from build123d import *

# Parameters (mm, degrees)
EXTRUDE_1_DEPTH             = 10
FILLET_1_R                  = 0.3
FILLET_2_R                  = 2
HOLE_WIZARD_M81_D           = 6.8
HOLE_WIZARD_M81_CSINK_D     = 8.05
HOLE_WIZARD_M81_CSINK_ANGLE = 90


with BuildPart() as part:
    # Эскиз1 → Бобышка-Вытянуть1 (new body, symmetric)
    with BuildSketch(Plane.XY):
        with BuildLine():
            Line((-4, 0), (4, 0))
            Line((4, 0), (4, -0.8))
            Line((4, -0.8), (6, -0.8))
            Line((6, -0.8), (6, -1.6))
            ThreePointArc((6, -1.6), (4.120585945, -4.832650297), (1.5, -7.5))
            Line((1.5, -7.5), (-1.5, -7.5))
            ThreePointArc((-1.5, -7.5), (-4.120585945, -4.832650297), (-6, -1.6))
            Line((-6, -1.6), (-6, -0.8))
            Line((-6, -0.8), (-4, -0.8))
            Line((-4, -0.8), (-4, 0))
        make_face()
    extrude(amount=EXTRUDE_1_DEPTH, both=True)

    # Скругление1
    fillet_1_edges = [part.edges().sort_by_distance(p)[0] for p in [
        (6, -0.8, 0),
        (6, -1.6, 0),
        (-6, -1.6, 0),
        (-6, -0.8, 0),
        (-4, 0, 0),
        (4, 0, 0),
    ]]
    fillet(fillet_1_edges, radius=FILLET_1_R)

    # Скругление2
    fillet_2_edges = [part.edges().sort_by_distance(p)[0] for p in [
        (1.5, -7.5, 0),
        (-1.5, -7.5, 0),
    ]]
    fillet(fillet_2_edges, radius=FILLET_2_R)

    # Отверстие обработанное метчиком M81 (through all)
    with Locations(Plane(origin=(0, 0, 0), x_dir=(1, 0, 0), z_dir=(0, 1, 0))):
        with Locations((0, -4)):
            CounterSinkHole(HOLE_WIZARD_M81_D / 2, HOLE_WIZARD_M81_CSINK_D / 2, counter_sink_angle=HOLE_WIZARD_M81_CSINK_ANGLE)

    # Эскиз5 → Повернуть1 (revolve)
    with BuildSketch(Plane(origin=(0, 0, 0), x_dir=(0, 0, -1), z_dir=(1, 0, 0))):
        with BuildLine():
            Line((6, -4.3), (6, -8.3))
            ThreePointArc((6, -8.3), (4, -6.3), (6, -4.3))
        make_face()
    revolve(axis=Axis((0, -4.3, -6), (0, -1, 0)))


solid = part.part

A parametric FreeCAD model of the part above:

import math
import FreeCAD as App
import Part
import Sketcher
from FreeCAD import Vector
Q = App.Units.Quantity


def edges_at(feature, points):
    """Names of the edges that pass closest to the given points."""
    edges = feature.Shape.Edges
    near = lambda p: min(range(len(edges)), key=lambda i: edges[i].distToShape(Part.Vertex(*p))[0])
    return sorted({f"Edge{near(p) + 1}" for p in points})

doc = App.newDocument("Part")
body = doc.addObject("PartDesign::Body", "Body")

# Sketch on XY plane
sketch1 = body.newObject("Sketcher::SketchObject", "Sketch")
sketch1.AttachmentSupport = (doc.getObject("XY_Plane"), [""])
sketch1.MapMode = "FlatFace"
sketch1.addGeometry(Part.LineSegment(Vector(4, 0, 0), Vector(-4, 0, 0)), False)
sketch1.addGeometry(Part.LineSegment(Vector(-4, 0, 0), Vector(-4, -0.8, 0)), False)
sketch1.addGeometry(Part.LineSegment(Vector(-4, -0.8, 0), Vector(-6, -0.8, 0)), False)
sketch1.addGeometry(Part.LineSegment(Vector(-6, -0.8, 0), Vector(-6, -1.6, 0)), False)
sketch1.addGeometry(Part.ArcOfCircle(Part.Circle(Vector(7.806248, 4.264087, 0), Vector(0, 0, 1), 15), math.radians(-156.987051), math.radians(-128.346558)), False)
sketch1.addGeometry(Part.LineSegment(Vector(-1.5, -7.5, 0), Vector(1.5, -7.5, 0)), False)
sketch1.addGeometry(Part.ArcOfCircle(Part.Circle(Vector(-7.806248, 4.264087, 0), Vector(0, 0, 1), 15), math.radians(-51.653442), math.radians(-23.012949)), False)
sketch1.addGeometry(Part.LineSegment(Vector(6, -1.6, 0), Vector(6, -0.8, 0)), False)
sketch1.addGeometry(Part.LineSegment(Vector(6, -0.8, 0), Vector(4, -0.8, 0)), False)
sketch1.addGeometry(Part.LineSegment(Vector(4, -0.8, 0), Vector(4, 0, 0)), False)
sketch1.addConstraint(Sketcher.Constraint("Coincident", 0, 2, 1, 1))
sketch1.addConstraint(Sketcher.Constraint("Coincident", 1, 2, 2, 1))
sketch1.addConstraint(Sketcher.Constraint("Coincident", 2, 2, 3, 1))
sketch1.addConstraint(Sketcher.Constraint("Coincident", 3, 2, 4, 1))
sketch1.addConstraint(Sketcher.Constraint("Coincident", 4, 2, 5, 1))
sketch1.addConstraint(Sketcher.Constraint("Coincident", 5, 2, 6, 1))
sketch1.addConstraint(Sketcher.Constraint("Coincident", 6, 2, 7, 1))
sketch1.addConstraint(Sketcher.Constraint("Coincident", 7, 2, 8, 1))
sketch1.addConstraint(Sketcher.Constraint("Coincident", 8, 2, 9, 1))
sketch1.addConstraint(Sketcher.Constraint("Coincident", 9, 2, 0, 1))
sketch1.addConstraint(Sketcher.Constraint("Horizontal", 0))
sketch1.addConstraint(Sketcher.Constraint("Vertical", 1))
sketch1.addConstraint(Sketcher.Constraint("Horizontal", 2))
sketch1.addConstraint(Sketcher.Constraint("Vertical", 3))
sketch1.addConstraint(Sketcher.Constraint("Horizontal", 5))
sketch1.addConstraint(Sketcher.Constraint("Vertical", 7))
sketch1.addConstraint(Sketcher.Constraint("Horizontal", 8))
sketch1.addConstraint(Sketcher.Constraint("Vertical", 9))
sketch1.addConstraint(Sketcher.Constraint("Equal", 4, 6))
sketch1.addConstraint(Sketcher.Constraint("Symmetric", 0, 2, 9, 2, -1, 1))
sketch1.addConstraint(Sketcher.Constraint("Symmetric", 4, 3, 6, 3, -2))
sketch1.addConstraint(Sketcher.Constraint("Symmetric", 2, 2, 7, 2, -2))
sketch1.addConstraint(Sketcher.Constraint("Equal", 1, 3))
sketch1.addConstraint(Sketcher.Constraint("Radius", 4, Q("15 mm")))
sketch1.addConstraint(Sketcher.Constraint("DistanceX", 0, 2, 0, 1, Q("8 mm")))
sketch1.addConstraint(Sketcher.Constraint("DistanceX", 2, 2, 2, 1, Q("2 mm")))
sketch1.addConstraint(Sketcher.Constraint("DistanceX", 5, 1, 5, 2, Q("3 mm")))
sketch1.addConstraint(Sketcher.Constraint("DistanceY", 1, 2, 1, 1, Q("0.8 mm")))
sketch1.addConstraint(Sketcher.Constraint("DistanceY", 4, 2, -1, 1, Q("7.5 mm")))
pad1 = body.newObject("PartDesign::Pad", "Pad")
pad1.Profile = sketch1
pad1.Length = 20
pad1.Midplane = True
doc.recompute()

fillet = body.newObject("PartDesign::Fillet", "Fillet")
fillet.Base = (pad1, edges_at(pad1, [
    (6, -0.8, 0),
    (6, -1.6, 0),
    (-6, -1.6, 0),
    (-6, -0.8, 0),
    (-4, 0, 0),
    (4, 0, 0),
]))
fillet.Radius = 0.3
doc.recompute()

fillet2 = body.newObject("PartDesign::Fillet", "Fillet001")
fillet2.Base = (fillet, edges_at(fillet, [(1.5, -7.5, 0), (-1.5, -7.5, 0)]))
fillet2.Radius = 2

# Sketch on XZ plane
sketch2 = body.newObject("Sketcher::SketchObject", "Sketch001")
sketch2.AttachmentSupport = (doc.getObject("XZ_Plane"), [""])
sketch2.MapMode = "FlatFace"
sketch2.addGeometry(Part.Circle(Vector(0, 4, 0), Vector(0, 0, 1), 3.4), False)
sketch2.addConstraint(Sketcher.Constraint("PointOnObject", 0, 3, -2))
sketch2.addConstraint(Sketcher.Constraint("Diameter", 0, Q("6.8 mm")))
sketch2.addConstraint(Sketcher.Constraint("DistanceY", -1, 1, 0, 3, Q("4 mm")))
doc.recompute()
hole = body.newObject("PartDesign::Hole", "Hole")
hole.Profile = sketch2
hole.ThreadType = "None"
hole.Diameter = 6.8
hole.DepthType = "ThroughAll"
hole.HoleCutType = "Countersink"
hole.HoleCutDiameter = 8.05
hole.HoleCutCountersinkAngle = 90
hole.Reversed = True

# Sketch on YZ plane
sketch3 = body.newObject("Sketcher::SketchObject", "Sketch002")
sketch3.AttachmentSupport = (doc.getObject("YZ_Plane"), [""])
sketch3.MapMode = "FlatFace"
sketch3.addGeometry(Part.LineSegment(Vector(-8.3, -6, 0), Vector(-4.3, -6, 0)), False)
sketch3.addGeometry(Part.ArcOfCircle(Part.Circle(Vector(-6.3, -6, 0), Vector(0, 0, 1), 2), math.radians(0), math.radians(180)), False)
sketch3.addGeometry(Part.LineSegment(Vector(-4.3, -6, 0), Vector(-8.3, -6, 0)), True)  # axis
sketch3.addConstraint(Sketcher.Constraint("Coincident", 0, 1, 1, 2))
sketch3.addConstraint(Sketcher.Constraint("Coincident", 1, 1, 0, 2))
sketch3.addConstraint(Sketcher.Constraint("Horizontal", 0))
sketch3.addConstraint(Sketcher.Constraint("Horizontal", 2))
sketch3.addConstraint(Sketcher.Constraint("Coincident", 2, 1, 1, 1))
sketch3.addConstraint(Sketcher.Constraint("Horizontal", 1, 3, 0, 1))
sketch3.addConstraint(Sketcher.Constraint("Equal", 0, 2))
sketch3.addConstraint(Sketcher.Constraint("Radius", 1, Q("2 mm")))
sketch3.addConstraint(Sketcher.Constraint("DistanceY", 1, 3, -1, 1, Q("6 mm")))
sketch3.addConstraint(Sketcher.Constraint("DistanceX", 1, 3, -1, 1, Q("6.3 mm")))
revolution = body.newObject("PartDesign::Revolution", "Revolution")
revolution.Profile = sketch3
revolution.ReferenceAxis = (sketch3, ["Axis0"])
revolution.Angle = 360

doc.recompute()
